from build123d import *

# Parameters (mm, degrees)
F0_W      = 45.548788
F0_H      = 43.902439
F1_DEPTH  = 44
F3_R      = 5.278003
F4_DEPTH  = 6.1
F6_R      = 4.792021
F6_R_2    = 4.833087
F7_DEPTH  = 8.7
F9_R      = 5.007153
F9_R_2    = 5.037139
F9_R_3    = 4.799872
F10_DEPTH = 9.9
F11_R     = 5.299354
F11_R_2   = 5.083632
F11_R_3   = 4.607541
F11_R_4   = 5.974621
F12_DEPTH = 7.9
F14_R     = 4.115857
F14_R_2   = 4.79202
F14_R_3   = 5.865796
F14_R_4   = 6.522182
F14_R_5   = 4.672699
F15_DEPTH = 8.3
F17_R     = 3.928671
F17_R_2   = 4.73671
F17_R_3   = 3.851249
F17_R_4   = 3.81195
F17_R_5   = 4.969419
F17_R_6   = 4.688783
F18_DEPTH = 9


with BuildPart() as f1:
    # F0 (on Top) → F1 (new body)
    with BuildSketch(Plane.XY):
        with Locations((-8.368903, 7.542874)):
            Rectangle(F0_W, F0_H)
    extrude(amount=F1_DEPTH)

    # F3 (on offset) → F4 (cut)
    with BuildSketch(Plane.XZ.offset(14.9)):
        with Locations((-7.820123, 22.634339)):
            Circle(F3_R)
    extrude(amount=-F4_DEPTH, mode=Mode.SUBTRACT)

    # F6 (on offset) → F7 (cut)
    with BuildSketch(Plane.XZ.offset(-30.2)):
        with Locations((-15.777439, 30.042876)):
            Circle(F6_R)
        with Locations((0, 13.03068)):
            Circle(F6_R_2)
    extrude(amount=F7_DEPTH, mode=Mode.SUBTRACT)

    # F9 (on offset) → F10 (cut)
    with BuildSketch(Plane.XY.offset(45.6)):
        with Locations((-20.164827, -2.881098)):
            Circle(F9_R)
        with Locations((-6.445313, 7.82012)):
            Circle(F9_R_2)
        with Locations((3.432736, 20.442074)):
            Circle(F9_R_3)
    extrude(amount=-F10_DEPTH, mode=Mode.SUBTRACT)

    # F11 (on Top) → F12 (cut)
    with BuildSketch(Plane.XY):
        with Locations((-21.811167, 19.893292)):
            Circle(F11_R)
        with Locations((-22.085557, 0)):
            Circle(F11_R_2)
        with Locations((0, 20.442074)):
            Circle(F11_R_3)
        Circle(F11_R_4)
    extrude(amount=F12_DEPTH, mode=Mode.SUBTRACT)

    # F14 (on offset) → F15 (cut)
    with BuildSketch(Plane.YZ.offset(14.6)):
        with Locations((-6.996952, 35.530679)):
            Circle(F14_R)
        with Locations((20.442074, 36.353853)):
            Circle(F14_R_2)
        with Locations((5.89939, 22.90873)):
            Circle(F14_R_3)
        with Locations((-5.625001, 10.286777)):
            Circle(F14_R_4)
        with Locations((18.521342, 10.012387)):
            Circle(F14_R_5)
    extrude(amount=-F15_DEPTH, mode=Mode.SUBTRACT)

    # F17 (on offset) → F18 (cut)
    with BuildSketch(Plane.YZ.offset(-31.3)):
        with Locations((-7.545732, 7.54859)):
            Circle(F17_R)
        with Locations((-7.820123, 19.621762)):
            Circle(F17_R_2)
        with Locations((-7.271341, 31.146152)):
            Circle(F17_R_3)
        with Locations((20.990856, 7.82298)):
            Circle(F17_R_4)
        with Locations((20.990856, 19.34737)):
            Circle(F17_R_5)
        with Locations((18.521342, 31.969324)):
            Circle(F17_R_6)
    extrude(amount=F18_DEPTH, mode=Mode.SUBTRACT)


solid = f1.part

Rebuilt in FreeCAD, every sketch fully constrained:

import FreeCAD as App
import Part
import Sketcher
Q = App.Units.Quantity


def add_polygon(sketch, points):
    """Adds a closed chain of lines whose ends are joined by coincident constraints."""
    first, n = sketch.GeometryCount, len(points)
    for a, b in zip(points, points[1:] + points[:1]):
        sketch.addGeometry(Part.LineSegment(App.Vector(*a, 0), App.Vector(*b, 0)), False)
    for i in range(n):
        sketch.addConstraint(Sketcher.Constraint("Coincident", first + i, 2, first + (i + 1) % n, 1))

doc = App.newDocument("Part")
body = doc.addObject("PartDesign::Body", "Body")

# Sketch on XY plane
sketch1 = body.newObject("Sketcher::SketchObject", "Sketch")
sketch1.AttachmentSupport = (doc.getObject("XY_Plane"), [""])
sketch1.MapMode = "FlatFace"
add_polygon(sketch1, [(-31, 29), (-31, -14), (14, -14), (14, 29)])  # lines 0-3
sketch1.addConstraint([
    Sketcher.Constraint("Vertical", 0),
    Sketcher.Constraint("Horizontal", 1),
    Sketcher.Constraint("Vertical", 2),
    Sketcher.Constraint("Horizontal", 3),
    Sketcher.Constraint("DistanceX", 1, 1, 1, 2, Q("45.548788 mm")),
    Sketcher.Constraint("DistanceY", 0, 2, 0, 1, Q("43.902439 mm")),
    Sketcher.Constraint("DistanceX", -1, 1, 1, 2, Q("14.405491 mm")),
    Sketcher.Constraint("DistanceY", 0, 2, -1, 1, Q("14.408345 mm")),
])
pad1 = body.newObject("PartDesign::Pad", "Pad")
pad1.Profile = sketch1
pad1.Length = 44

# Sketch on XZ plane
sketch2 = body.newObject("Sketcher::SketchObject", "Sketch001")
sketch2.AttachmentSupport = (doc.getObject("XZ_Plane"), [""])
sketch2.MapMode = "FlatFace"
sketch2.AttachmentOffset = App.Placement(App.Vector(0, 0, 14.9), App.Rotation())
sketch2.addGeometry(Part.Circle(App.Vector(-8, 23, 0), App.Vector(0, 0, 1), 5), False)
sketch2.addConstraint([
    Sketcher.Constraint("Diameter", 0, Q("10.556006 mm")),
    Sketcher.Constraint("DistanceY", -1, 1, 0, 3, Q("22.634339 mm")),
    Sketcher.Constraint("DistanceX", 0, 3, -1, 1, Q("7.820123 mm")),
])
pocket1 = body.newObject("PartDesign::Pocket", "Pocket")
pocket1.Profile = sketch2
pocket1.Length = 6.1

# Sketch on XZ plane
sketch3 = body.newObject("Sketcher::SketchObject", "Sketch002")
sketch3.AttachmentSupport = (doc.getObject("XZ_Plane"), [""])
sketch3.MapMode = "FlatFace"
sketch3.AttachmentOffset = App.Placement(App.Vector(0, 0, -30.2), App.Rotation())
sketch3.addGeometry([
    Part.Circle(App.Vector(-15.8, 30, 0), App.Vector(0, 0, 1), 4.8),
    Part.Circle(App.Vector(0, 13, 0), App.Vector(0, 0, 1), 4.8),
], False)
sketch3.addConstraint([
    Sketcher.Constraint("PointOnObject", 1, 3, -2),
    Sketcher.Constraint("Diameter", 0, Q("9.584042 mm")),
    Sketcher.Constraint("Diameter", 1, Q("9.666174 mm")),
    Sketcher.Constraint("DistanceX", 0, 3, -1, 1, Q("15.777439 mm")),
    Sketcher.Constraint("DistanceY", -1, 1, 1, 3, Q("13.03068 mm")),
    Sketcher.Constraint("DistanceY", -1, 1, 0, 3, Q("30.042876 mm")),
])
pocket2 = body.newObject("PartDesign::Pocket", "Pocket001")
pocket2.Profile = sketch3
pocket2.Length = 8.7
pocket2.Reversed = True

# Sketch on XY plane
sketch4 = body.newObject("Sketcher::SketchObject", "Sketch003")
sketch4.AttachmentSupport = (doc.getObject("XY_Plane"), [""])
sketch4.MapMode = "FlatFace"
sketch4.AttachmentOffset = App.Placement(App.Vector(0, 0, 45.6), App.Rotation())
sketch4.addGeometry([
    Part.Circle(App.Vector(-20.2, -2.9, 0), App.Vector(0, 0, 1), 5),
    Part.Circle(App.Vector(-6.4, 7.8, 0), App.Vector(0, 0, 1), 5),
    Part.Circle(App.Vector(3.4, 20.4, 0), App.Vector(0, 0, 1), 4.8),
], False)
sketch4.addConstraint([
    Sketcher.Constraint("Diameter", 0, Q("10.014306 mm")),
    Sketcher.Constraint("Diameter", 1, Q("10.074278 mm")),
    Sketcher.Constraint("Diameter", 2, Q("9.599744 mm")),
    Sketcher.Constraint("DistanceY", 0, 3, -1, 1, Q("2.881098 mm")),
    Sketcher.Constraint("DistanceY", -1, 1, 1, 3, Q("7.82012 mm")),
    Sketcher.Constraint("DistanceX", 1, 3, 2, 3, Q("9.878049 mm")),
    Sketcher.Constraint("DistanceX", 0, 3, -1, 1, Q("20.164827 mm")),
    Sketcher.Constraint("DistanceX", 1, 3, -1, 1, Q("6.445313 mm")),
    Sketcher.Constraint("DistanceY", -1, 1, 2, 3, Q("20.442074 mm")),
])
pocket3 = body.newObject("PartDesign::Pocket", "Pocket002")
pocket3.Profile = sketch4
pocket3.Length = 9.9

# Sketch on XY plane
sketch5 = body.newObject("Sketcher::SketchObject", "Sketch004")
sketch5.AttachmentSupport = (doc.getObject("XY_Plane"), [""])
sketch5.MapMode = "FlatFace"
sketch5.addGeometry([
    Part.Circle(App.Vector(-21.8, 19.9, 0), App.Vector(0, 0, 1), 5.3),
    Part.Circle(App.Vector(-22.1, 0, 0), App.Vector(0, 0, 1), 5.1),
    Part.Circle(App.Vector(0, 20.4, 0), App.Vector(0, 0, 1), 4.6),
    Part.Circle(App.Vector(0, 0, 0), App.Vector(0, 0, 1), 6),
], False)
sketch5.addConstraint([
    Sketcher.Constraint("Coincident", 3, 3, -1, 1),
    Sketcher.Constraint("PointOnObject", 1, 3, -1),
    Sketcher.Constraint("PointOnObject", 2, 3, -2),
    Sketcher.Constraint("Diameter", 0, Q("10.598708 mm")),
    Sketcher.Constraint("Diameter", 1, Q("10.167264 mm")),
    Sketcher.Constraint("Diameter", 2, Q("9.215082 mm")),
    Sketcher.Constraint("Diameter", 3, Q("11.949242 mm")),
    Sketcher.Constraint("DistanceY", -1, 1, 0, 3, Q("19.893292 mm")),
    Sketcher.Constraint("DistanceX", 1, 3, 0, 3, Q("0.27439 mm")),
    Sketcher.Constraint("DistanceX", 0, 3, -1, 1, Q("21.811167 mm")),
    Sketcher.Constraint("DistanceY", -1, 1, 2, 3, Q("20.442074 mm")),
])
pocket4 = body.newObject("PartDesign::Pocket", "Pocket003")
pocket4.Profile = sketch5
pocket4.Length = 7.9
pocket4.Reversed = True

# Sketch on YZ plane
sketch6 = body.newObject("Sketcher::SketchObject", "Sketch005")
sketch6.AttachmentSupport = (doc.getObject("YZ_Plane"), [""])
sketch6.MapMode = "FlatFace"
sketch6.AttachmentOffset = App.Placement(App.Vector(0, 0, 14.6), App.Rotation())
sketch6.addGeometry([
    Part.Circle(App.Vector(-7, 35.5, 0), App.Vector(0, 0, 1), 4.1),  # 0
    Part.Circle(App.Vector(20.4, 36.4, 0), App.Vector(0, 0, 1), 4.8),  # 1
    Part.Circle(App.Vector(5.9, 22.9, 0), App.Vector(0, 0, 1), 5.9),  # 2
    Part.Circle(App.Vector(-5.6, 10.3, 0), App.Vector(0, 0, 1), 6.5),  # 3
    Part.Circle(App.Vector(18.5, 10, 0), App.Vector(0, 0, 1), 4.7),  # 4
], False)
sketch6.addConstraint([
    Sketcher.Constraint("Diameter", 1, Q("9.58404 mm")),
    Sketcher.Constraint("Diameter", 2, Q("11.731592 mm")),
    Sketcher.Constraint("Diameter", 0, Q("8.231714 mm")),
    Sketcher.Constraint("Diameter", 3, Q("13.044364 mm")),
    Sketcher.Constraint("Diameter", 4, Q("9.345398 mm")),
    Sketcher.Constraint("DistanceX", 3, 3, -1, 1, Q("5.625001 mm")),
    Sketcher.Constraint("DistanceY", 3, 3, 0, 3, Q("25.243902 mm")),
    Sketcher.Constraint("DistanceY", -1, 1, 0, 3, Q("35.530679 mm")),
    Sketcher.Constraint("DistanceX", -1, 1, 2, 3, Q("5.89939 mm")),
    Sketcher.Constraint("DistanceY", -1, 1, 2, 3, Q("22.90873 mm")),
    Sketcher.Constraint("DistanceX", 0, 3, 3, 3, Q("1.371951 mm")),
    Sketcher.Constraint("DistanceY", 4, 3, 3, 3, Q("0.27439 mm")),
    Sketcher.Constraint("DistanceX", -1, 1, 1, 3, Q("20.442074 mm")),
    Sketcher.Constraint("DistanceY", -1, 1, 1, 3, Q("36.353853 mm")),
    Sketcher.Constraint("DistanceX", -1, 1, 4, 3, Q("18.521342 mm")),
])
pocket5 = body.newObject("PartDesign::Pocket", "Pocket004")
pocket5.Profile = sketch6
pocket5.Length = 8.3

# Sketch on YZ plane
sketch7 = body.newObject("Sketcher::SketchObject", "Sketch006")
sketch7.AttachmentSupport = (doc.getObject("YZ_Plane"), [""])
sketch7.MapMode = "FlatFace"
sketch7.AttachmentOffset = App.Placement(App.Vector(0, 0, -31.3), App.Rotation())
sketch7.addGeometry([
    Part.Circle(App.Vector(-7.5, 7.5, 0), App.Vector(0, 0, 1), 3.9),  # 0
    Part.Circle(App.Vector(-7.8, 19.6, 0), App.Vector(0, 0, 1), 4.7),  # 1
    Part.Circle(App.Vector(-7.3, 31.1, 0), App.Vector(0, 0, 1), 3.9),  # 2
    Part.Circle(App.Vector(21, 7.8, 0), App.Vector(0, 0, 1), 3.8),  # 3
    Part.Circle(App.Vector(21, 19.3, 0), App.Vector(0, 0, 1), 5),  # 4
    Part.Circle(App.Vector(18.5, 32, 0), App.Vector(0, 0, 1), 4.7),  # 5
], False)
sketch7.addConstraint([
    Sketcher.Constraint("Vertical", 3, 3, 4, 3),
    Sketcher.Constraint("Diameter", 2, Q("7.702498 mm")),
    Sketcher.Constraint("Diameter", 3, Q("7.6239 mm")),
    Sketcher.Constraint("Diameter", 1, Q("9.47342 mm")),
    Sketcher.Constraint("Diameter", 0, Q("7.857342 mm")),
    Sketcher.Constraint("Diameter", 4, Q("9.938838 mm")),
    Sketcher.Constraint("Diameter", 5, Q("9.377566 mm")),
    Sketcher.Constraint("DistanceY", -1, 1, 0, 3, Q("7.54859 mm")),
    Sketcher.Constraint("DistanceX", 2, 3, -1, 1, Q("7.271341 mm")),
    Sketcher.Constraint("DistanceY", -1, 1, 3, 3, Q("7.82298 mm")),
    Sketcher.Constraint("DistanceY", -1, 1, 4, 3, Q("19.34737 mm")),
    Sketcher.Constraint("DistanceX", 1, 3, 0, 3, Q("0.274391 mm")),
    Sketcher.Constraint("DistanceY", 1, 3, 2, 3, Q("11.52439 mm")),
    Sketcher.Constraint("DistanceX", 0, 3, 2, 3, Q("0.274391 mm")),
    Sketcher.Constraint("DistanceY", 0, 3, 2, 3, Q("23.597562 mm")),
    Sketcher.Constraint("DistanceX", 0, 3, 3, 3, Q("28.536588 mm")),
    Sketcher.Constraint("DistanceY", 2, 3, 5, 3, Q("0.823172 mm")),
    Sketcher.Constraint("DistanceX", -1, 1, 5, 3, Q("18.521342 mm")),
])
pocket6 = body.newObject("PartDesign::Pocket", "Pocket005")
pocket6.Profile = sketch7
pocket6.Length = 9
pocket6.Reversed = True

doc.recompute()
